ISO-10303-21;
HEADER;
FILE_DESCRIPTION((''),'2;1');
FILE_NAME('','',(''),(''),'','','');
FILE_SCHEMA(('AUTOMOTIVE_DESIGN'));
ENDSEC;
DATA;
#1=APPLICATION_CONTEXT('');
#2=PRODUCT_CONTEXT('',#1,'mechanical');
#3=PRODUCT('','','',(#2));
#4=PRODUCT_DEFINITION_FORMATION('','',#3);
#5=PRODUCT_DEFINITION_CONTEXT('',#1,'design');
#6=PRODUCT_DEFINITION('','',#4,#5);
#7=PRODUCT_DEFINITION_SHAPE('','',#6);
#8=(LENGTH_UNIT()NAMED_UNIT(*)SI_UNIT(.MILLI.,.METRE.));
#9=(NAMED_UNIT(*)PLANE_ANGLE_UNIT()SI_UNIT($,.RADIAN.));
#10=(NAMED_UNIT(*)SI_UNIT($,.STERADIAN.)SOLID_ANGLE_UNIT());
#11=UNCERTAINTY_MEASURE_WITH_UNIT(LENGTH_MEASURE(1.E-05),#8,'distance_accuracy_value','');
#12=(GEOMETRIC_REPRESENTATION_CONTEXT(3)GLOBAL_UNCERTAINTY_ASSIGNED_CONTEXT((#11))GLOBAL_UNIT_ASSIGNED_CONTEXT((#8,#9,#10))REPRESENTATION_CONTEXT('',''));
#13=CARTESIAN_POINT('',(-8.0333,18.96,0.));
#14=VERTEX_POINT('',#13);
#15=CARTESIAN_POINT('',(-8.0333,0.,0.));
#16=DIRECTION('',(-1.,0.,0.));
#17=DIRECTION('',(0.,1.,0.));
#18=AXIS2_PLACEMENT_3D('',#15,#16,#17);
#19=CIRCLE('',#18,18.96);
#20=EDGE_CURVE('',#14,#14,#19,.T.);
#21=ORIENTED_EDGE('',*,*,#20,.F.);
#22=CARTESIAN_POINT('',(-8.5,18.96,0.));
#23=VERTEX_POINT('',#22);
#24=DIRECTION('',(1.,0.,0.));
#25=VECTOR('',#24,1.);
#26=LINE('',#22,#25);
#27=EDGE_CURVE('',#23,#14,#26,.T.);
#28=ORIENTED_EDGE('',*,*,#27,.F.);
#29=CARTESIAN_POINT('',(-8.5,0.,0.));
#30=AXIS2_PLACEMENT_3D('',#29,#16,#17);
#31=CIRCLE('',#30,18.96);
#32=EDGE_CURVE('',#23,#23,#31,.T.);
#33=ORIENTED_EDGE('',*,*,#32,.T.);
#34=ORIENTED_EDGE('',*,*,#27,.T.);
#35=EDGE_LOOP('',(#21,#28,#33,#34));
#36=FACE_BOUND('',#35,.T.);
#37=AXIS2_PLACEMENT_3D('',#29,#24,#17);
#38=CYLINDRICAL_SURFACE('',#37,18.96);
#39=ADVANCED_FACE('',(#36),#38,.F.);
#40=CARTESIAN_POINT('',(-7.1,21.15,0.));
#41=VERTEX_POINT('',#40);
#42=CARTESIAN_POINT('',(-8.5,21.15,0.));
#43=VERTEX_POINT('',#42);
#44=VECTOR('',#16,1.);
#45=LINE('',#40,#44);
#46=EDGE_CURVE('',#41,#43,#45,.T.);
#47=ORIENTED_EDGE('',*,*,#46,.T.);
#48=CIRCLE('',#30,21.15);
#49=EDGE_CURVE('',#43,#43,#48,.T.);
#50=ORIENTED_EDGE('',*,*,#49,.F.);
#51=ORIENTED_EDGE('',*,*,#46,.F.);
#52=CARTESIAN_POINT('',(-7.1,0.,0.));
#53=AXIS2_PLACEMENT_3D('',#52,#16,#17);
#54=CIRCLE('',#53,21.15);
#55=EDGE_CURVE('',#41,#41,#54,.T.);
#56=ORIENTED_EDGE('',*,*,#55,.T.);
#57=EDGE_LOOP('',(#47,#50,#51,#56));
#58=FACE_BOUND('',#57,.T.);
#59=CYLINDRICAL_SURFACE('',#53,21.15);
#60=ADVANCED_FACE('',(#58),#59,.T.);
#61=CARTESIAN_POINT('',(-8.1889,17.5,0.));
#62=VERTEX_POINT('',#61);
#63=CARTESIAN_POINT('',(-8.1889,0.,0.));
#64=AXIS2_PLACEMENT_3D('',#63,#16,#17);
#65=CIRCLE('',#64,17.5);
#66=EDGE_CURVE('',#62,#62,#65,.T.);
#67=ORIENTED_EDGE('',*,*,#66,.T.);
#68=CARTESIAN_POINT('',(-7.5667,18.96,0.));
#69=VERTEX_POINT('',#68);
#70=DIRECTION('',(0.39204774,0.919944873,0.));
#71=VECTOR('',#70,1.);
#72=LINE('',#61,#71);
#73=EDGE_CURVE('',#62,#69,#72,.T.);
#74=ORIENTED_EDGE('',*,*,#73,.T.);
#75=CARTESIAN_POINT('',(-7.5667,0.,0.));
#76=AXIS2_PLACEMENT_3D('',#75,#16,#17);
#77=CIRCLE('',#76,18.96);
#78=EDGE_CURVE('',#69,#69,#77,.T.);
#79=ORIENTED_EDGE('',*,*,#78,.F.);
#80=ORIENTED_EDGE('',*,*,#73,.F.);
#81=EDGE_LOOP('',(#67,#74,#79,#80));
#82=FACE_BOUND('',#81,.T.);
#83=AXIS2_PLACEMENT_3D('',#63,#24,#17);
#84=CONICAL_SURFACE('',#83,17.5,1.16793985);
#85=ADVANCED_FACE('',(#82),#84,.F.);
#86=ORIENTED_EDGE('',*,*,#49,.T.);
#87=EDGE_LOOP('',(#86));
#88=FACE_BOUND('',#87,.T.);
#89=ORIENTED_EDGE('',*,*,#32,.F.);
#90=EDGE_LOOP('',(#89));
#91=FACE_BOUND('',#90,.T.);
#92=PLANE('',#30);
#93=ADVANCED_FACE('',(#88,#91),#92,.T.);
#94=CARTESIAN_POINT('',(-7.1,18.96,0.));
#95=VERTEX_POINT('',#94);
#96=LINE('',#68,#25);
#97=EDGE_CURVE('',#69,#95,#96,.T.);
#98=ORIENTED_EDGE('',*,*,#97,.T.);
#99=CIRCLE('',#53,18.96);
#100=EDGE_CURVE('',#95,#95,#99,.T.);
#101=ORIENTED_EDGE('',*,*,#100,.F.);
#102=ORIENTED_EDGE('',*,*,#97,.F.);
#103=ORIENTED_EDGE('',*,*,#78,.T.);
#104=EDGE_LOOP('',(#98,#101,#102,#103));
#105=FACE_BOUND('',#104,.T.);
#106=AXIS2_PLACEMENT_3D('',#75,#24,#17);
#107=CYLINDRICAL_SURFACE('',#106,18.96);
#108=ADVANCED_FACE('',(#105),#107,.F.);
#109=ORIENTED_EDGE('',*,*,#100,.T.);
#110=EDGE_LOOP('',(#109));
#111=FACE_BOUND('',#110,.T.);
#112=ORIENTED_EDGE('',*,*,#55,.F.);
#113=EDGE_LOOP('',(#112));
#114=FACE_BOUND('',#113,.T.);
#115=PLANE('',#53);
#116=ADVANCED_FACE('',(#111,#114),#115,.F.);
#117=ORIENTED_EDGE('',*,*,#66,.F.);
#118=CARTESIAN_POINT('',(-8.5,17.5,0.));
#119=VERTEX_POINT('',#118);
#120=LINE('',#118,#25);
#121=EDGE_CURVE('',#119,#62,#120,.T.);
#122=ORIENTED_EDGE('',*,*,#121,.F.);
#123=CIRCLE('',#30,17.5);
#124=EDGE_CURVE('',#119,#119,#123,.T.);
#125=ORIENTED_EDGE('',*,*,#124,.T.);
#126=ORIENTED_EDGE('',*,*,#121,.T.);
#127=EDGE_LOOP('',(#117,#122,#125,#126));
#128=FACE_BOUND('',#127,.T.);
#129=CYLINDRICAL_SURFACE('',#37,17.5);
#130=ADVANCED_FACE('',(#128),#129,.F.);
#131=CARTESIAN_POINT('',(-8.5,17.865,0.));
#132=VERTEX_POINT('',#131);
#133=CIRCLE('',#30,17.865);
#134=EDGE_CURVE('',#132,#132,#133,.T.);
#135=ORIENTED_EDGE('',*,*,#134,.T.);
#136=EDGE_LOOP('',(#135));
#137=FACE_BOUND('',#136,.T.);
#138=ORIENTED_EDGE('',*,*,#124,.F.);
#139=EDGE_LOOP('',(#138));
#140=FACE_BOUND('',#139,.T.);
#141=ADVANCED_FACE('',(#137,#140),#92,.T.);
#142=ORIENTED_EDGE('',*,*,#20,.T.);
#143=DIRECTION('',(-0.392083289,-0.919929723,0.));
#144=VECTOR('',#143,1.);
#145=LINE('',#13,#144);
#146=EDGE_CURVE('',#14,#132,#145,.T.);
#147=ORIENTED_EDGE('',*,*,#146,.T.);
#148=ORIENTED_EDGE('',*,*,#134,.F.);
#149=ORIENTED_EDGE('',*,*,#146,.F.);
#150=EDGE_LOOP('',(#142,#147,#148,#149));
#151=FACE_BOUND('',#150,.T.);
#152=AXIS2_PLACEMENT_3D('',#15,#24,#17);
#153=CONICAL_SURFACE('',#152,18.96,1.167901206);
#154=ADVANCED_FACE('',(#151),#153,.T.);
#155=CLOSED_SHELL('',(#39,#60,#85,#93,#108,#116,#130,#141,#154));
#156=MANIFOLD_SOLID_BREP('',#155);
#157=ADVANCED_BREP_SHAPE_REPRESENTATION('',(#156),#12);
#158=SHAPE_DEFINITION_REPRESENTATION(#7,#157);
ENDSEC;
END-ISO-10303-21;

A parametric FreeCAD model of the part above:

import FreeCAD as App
import Part
import Sketcher

V = App.Vector

doc = App.newDocument("Part")
body = doc.addObject("PartDesign::Body", "Body")

sketch1 = body.newObject("Sketcher::SketchObject", "Sketch")
sketch1.AttachmentSupport = (doc.getObject("XY_Plane"), [""])
sketch1.MapMode = "FlatFace"
sketch1.addGeometry(Part.LineSegment(V(-8.03, 18.96, 0), V(-8.5, 17.86, 0)), False)
sketch1.addGeometry(Part.LineSegment(V(-8.5, 17.86, 0), V(-8.5, 17.5, 0)), False)
sketch1.addGeometry(Part.LineSegment(V(-8.5, 17.5, 0), V(-8.19, 17.5, 0)), False)
sketch1.addGeometry(Part.LineSegment(V(-8.19, 17.5, 0), V(-7.57, 18.96, 0)), False)
sketch1.addGeometry(Part.LineSegment(V(-7.57, 18.96, 0), V(-7.1, 18.96, 0)), False)
sketch1.addGeometry(Part.LineSegment(V(-7.1, 18.96, 0), V(-7.1, 21.15, 0)), False)
sketch1.addGeometry(Part.LineSegment(V(-7.1, 21.15, 0), V(-8.5, 21.15, 0)), False)
sketch1.addGeometry(Part.LineSegment(V(-8.5, 21.15, 0), V(-8.5, 18.96, 0)), False)
sketch1.addGeometry(Part.LineSegment(V(-8.5, 18.96, 0), V(-8.03, 18.96, 0)), False)
sketch1.addConstraint(Sketcher.Constraint("Coincident", 0, 2, 1, 1))
sketch1.addConstraint(Sketcher.Constraint("Coincident", 1, 2, 2, 1))
sketch1.addConstraint(Sketcher.Constraint("Coincident", 2, 2, 3, 1))
sketch1.addConstraint(Sketcher.Constraint("Coincident", 3, 2, 4, 1))
sketch1.addConstraint(Sketcher.Constraint("Coincident", 4, 2, 5, 1))
sketch1.addConstraint(Sketcher.Constraint("Coincident", 5, 2, 6, 1))
sketch1.addConstraint(Sketcher.Constraint("Coincident", 6, 2, 7, 1))
sketch1.addConstraint(Sketcher.Constraint("Coincident", 7, 2, 8, 1))
sketch1.addConstraint(Sketcher.Constraint("Coincident", 8, 2, 0, 1))
sketch1.addConstraint(Sketcher.Constraint("Vertical", 1))
sketch1.addConstraint(Sketcher.Constraint("Horizontal", 2))
sketch1.addConstraint(Sketcher.Constraint("Horizontal", 4))
sketch1.addConstraint(Sketcher.Constraint("Vertical", 5))
sketch1.addConstraint(Sketcher.Constraint("Horizontal", 6))
sketch1.addConstraint(Sketcher.Constraint("Vertical", 7))
sketch1.addConstraint(Sketcher.Constraint("Horizontal", 8))
sketch1.addConstraint(Sketcher.Constraint("Parallel", 0, 3))
sketch1.addConstraint(Sketcher.Constraint("Horizontal", 4, 2, 7, 2))
sketch1.addConstraint(Sketcher.Constraint("Vertical", 1, 2, 6, 2))
sketch1.addConstraint(Sketcher.Constraint("Equal", 4, 8))
sketch1.addConstraint(Sketcher.Constraint("DistanceX", 6, 2, 6, 1, 1.4))
sketch1.addConstraint(Sketcher.Constraint("DistanceY", 5, 1, 5, 2, 2.19))
sketch1.addConstraint(Sketcher.Constraint("DistanceX", 0, 2, -1, 1, 8.5))
sketch1.addConstraint(Sketcher.Constraint("DistanceY", -1, 1, 1, 2, 17.5))
sketch1.addConstraint(Sketcher.Constraint("DistanceX", 2, 1, 2, 2, 0.311))
sketch1.addConstraint(Sketcher.Constraint("DistanceY", 1, 2, 1, 1, 0.365))
sketch1.addConstraint(Sketcher.Constraint("DistanceY", -1, 1, 3, 2, 18.96))
revolution = body.newObject("PartDesign::Revolution", "Revolution")
revolution.Profile = sketch1
revolution.ReferenceAxis = (sketch1, ["H_Axis"])
revolution.Angle = 360

doc.recompute()
